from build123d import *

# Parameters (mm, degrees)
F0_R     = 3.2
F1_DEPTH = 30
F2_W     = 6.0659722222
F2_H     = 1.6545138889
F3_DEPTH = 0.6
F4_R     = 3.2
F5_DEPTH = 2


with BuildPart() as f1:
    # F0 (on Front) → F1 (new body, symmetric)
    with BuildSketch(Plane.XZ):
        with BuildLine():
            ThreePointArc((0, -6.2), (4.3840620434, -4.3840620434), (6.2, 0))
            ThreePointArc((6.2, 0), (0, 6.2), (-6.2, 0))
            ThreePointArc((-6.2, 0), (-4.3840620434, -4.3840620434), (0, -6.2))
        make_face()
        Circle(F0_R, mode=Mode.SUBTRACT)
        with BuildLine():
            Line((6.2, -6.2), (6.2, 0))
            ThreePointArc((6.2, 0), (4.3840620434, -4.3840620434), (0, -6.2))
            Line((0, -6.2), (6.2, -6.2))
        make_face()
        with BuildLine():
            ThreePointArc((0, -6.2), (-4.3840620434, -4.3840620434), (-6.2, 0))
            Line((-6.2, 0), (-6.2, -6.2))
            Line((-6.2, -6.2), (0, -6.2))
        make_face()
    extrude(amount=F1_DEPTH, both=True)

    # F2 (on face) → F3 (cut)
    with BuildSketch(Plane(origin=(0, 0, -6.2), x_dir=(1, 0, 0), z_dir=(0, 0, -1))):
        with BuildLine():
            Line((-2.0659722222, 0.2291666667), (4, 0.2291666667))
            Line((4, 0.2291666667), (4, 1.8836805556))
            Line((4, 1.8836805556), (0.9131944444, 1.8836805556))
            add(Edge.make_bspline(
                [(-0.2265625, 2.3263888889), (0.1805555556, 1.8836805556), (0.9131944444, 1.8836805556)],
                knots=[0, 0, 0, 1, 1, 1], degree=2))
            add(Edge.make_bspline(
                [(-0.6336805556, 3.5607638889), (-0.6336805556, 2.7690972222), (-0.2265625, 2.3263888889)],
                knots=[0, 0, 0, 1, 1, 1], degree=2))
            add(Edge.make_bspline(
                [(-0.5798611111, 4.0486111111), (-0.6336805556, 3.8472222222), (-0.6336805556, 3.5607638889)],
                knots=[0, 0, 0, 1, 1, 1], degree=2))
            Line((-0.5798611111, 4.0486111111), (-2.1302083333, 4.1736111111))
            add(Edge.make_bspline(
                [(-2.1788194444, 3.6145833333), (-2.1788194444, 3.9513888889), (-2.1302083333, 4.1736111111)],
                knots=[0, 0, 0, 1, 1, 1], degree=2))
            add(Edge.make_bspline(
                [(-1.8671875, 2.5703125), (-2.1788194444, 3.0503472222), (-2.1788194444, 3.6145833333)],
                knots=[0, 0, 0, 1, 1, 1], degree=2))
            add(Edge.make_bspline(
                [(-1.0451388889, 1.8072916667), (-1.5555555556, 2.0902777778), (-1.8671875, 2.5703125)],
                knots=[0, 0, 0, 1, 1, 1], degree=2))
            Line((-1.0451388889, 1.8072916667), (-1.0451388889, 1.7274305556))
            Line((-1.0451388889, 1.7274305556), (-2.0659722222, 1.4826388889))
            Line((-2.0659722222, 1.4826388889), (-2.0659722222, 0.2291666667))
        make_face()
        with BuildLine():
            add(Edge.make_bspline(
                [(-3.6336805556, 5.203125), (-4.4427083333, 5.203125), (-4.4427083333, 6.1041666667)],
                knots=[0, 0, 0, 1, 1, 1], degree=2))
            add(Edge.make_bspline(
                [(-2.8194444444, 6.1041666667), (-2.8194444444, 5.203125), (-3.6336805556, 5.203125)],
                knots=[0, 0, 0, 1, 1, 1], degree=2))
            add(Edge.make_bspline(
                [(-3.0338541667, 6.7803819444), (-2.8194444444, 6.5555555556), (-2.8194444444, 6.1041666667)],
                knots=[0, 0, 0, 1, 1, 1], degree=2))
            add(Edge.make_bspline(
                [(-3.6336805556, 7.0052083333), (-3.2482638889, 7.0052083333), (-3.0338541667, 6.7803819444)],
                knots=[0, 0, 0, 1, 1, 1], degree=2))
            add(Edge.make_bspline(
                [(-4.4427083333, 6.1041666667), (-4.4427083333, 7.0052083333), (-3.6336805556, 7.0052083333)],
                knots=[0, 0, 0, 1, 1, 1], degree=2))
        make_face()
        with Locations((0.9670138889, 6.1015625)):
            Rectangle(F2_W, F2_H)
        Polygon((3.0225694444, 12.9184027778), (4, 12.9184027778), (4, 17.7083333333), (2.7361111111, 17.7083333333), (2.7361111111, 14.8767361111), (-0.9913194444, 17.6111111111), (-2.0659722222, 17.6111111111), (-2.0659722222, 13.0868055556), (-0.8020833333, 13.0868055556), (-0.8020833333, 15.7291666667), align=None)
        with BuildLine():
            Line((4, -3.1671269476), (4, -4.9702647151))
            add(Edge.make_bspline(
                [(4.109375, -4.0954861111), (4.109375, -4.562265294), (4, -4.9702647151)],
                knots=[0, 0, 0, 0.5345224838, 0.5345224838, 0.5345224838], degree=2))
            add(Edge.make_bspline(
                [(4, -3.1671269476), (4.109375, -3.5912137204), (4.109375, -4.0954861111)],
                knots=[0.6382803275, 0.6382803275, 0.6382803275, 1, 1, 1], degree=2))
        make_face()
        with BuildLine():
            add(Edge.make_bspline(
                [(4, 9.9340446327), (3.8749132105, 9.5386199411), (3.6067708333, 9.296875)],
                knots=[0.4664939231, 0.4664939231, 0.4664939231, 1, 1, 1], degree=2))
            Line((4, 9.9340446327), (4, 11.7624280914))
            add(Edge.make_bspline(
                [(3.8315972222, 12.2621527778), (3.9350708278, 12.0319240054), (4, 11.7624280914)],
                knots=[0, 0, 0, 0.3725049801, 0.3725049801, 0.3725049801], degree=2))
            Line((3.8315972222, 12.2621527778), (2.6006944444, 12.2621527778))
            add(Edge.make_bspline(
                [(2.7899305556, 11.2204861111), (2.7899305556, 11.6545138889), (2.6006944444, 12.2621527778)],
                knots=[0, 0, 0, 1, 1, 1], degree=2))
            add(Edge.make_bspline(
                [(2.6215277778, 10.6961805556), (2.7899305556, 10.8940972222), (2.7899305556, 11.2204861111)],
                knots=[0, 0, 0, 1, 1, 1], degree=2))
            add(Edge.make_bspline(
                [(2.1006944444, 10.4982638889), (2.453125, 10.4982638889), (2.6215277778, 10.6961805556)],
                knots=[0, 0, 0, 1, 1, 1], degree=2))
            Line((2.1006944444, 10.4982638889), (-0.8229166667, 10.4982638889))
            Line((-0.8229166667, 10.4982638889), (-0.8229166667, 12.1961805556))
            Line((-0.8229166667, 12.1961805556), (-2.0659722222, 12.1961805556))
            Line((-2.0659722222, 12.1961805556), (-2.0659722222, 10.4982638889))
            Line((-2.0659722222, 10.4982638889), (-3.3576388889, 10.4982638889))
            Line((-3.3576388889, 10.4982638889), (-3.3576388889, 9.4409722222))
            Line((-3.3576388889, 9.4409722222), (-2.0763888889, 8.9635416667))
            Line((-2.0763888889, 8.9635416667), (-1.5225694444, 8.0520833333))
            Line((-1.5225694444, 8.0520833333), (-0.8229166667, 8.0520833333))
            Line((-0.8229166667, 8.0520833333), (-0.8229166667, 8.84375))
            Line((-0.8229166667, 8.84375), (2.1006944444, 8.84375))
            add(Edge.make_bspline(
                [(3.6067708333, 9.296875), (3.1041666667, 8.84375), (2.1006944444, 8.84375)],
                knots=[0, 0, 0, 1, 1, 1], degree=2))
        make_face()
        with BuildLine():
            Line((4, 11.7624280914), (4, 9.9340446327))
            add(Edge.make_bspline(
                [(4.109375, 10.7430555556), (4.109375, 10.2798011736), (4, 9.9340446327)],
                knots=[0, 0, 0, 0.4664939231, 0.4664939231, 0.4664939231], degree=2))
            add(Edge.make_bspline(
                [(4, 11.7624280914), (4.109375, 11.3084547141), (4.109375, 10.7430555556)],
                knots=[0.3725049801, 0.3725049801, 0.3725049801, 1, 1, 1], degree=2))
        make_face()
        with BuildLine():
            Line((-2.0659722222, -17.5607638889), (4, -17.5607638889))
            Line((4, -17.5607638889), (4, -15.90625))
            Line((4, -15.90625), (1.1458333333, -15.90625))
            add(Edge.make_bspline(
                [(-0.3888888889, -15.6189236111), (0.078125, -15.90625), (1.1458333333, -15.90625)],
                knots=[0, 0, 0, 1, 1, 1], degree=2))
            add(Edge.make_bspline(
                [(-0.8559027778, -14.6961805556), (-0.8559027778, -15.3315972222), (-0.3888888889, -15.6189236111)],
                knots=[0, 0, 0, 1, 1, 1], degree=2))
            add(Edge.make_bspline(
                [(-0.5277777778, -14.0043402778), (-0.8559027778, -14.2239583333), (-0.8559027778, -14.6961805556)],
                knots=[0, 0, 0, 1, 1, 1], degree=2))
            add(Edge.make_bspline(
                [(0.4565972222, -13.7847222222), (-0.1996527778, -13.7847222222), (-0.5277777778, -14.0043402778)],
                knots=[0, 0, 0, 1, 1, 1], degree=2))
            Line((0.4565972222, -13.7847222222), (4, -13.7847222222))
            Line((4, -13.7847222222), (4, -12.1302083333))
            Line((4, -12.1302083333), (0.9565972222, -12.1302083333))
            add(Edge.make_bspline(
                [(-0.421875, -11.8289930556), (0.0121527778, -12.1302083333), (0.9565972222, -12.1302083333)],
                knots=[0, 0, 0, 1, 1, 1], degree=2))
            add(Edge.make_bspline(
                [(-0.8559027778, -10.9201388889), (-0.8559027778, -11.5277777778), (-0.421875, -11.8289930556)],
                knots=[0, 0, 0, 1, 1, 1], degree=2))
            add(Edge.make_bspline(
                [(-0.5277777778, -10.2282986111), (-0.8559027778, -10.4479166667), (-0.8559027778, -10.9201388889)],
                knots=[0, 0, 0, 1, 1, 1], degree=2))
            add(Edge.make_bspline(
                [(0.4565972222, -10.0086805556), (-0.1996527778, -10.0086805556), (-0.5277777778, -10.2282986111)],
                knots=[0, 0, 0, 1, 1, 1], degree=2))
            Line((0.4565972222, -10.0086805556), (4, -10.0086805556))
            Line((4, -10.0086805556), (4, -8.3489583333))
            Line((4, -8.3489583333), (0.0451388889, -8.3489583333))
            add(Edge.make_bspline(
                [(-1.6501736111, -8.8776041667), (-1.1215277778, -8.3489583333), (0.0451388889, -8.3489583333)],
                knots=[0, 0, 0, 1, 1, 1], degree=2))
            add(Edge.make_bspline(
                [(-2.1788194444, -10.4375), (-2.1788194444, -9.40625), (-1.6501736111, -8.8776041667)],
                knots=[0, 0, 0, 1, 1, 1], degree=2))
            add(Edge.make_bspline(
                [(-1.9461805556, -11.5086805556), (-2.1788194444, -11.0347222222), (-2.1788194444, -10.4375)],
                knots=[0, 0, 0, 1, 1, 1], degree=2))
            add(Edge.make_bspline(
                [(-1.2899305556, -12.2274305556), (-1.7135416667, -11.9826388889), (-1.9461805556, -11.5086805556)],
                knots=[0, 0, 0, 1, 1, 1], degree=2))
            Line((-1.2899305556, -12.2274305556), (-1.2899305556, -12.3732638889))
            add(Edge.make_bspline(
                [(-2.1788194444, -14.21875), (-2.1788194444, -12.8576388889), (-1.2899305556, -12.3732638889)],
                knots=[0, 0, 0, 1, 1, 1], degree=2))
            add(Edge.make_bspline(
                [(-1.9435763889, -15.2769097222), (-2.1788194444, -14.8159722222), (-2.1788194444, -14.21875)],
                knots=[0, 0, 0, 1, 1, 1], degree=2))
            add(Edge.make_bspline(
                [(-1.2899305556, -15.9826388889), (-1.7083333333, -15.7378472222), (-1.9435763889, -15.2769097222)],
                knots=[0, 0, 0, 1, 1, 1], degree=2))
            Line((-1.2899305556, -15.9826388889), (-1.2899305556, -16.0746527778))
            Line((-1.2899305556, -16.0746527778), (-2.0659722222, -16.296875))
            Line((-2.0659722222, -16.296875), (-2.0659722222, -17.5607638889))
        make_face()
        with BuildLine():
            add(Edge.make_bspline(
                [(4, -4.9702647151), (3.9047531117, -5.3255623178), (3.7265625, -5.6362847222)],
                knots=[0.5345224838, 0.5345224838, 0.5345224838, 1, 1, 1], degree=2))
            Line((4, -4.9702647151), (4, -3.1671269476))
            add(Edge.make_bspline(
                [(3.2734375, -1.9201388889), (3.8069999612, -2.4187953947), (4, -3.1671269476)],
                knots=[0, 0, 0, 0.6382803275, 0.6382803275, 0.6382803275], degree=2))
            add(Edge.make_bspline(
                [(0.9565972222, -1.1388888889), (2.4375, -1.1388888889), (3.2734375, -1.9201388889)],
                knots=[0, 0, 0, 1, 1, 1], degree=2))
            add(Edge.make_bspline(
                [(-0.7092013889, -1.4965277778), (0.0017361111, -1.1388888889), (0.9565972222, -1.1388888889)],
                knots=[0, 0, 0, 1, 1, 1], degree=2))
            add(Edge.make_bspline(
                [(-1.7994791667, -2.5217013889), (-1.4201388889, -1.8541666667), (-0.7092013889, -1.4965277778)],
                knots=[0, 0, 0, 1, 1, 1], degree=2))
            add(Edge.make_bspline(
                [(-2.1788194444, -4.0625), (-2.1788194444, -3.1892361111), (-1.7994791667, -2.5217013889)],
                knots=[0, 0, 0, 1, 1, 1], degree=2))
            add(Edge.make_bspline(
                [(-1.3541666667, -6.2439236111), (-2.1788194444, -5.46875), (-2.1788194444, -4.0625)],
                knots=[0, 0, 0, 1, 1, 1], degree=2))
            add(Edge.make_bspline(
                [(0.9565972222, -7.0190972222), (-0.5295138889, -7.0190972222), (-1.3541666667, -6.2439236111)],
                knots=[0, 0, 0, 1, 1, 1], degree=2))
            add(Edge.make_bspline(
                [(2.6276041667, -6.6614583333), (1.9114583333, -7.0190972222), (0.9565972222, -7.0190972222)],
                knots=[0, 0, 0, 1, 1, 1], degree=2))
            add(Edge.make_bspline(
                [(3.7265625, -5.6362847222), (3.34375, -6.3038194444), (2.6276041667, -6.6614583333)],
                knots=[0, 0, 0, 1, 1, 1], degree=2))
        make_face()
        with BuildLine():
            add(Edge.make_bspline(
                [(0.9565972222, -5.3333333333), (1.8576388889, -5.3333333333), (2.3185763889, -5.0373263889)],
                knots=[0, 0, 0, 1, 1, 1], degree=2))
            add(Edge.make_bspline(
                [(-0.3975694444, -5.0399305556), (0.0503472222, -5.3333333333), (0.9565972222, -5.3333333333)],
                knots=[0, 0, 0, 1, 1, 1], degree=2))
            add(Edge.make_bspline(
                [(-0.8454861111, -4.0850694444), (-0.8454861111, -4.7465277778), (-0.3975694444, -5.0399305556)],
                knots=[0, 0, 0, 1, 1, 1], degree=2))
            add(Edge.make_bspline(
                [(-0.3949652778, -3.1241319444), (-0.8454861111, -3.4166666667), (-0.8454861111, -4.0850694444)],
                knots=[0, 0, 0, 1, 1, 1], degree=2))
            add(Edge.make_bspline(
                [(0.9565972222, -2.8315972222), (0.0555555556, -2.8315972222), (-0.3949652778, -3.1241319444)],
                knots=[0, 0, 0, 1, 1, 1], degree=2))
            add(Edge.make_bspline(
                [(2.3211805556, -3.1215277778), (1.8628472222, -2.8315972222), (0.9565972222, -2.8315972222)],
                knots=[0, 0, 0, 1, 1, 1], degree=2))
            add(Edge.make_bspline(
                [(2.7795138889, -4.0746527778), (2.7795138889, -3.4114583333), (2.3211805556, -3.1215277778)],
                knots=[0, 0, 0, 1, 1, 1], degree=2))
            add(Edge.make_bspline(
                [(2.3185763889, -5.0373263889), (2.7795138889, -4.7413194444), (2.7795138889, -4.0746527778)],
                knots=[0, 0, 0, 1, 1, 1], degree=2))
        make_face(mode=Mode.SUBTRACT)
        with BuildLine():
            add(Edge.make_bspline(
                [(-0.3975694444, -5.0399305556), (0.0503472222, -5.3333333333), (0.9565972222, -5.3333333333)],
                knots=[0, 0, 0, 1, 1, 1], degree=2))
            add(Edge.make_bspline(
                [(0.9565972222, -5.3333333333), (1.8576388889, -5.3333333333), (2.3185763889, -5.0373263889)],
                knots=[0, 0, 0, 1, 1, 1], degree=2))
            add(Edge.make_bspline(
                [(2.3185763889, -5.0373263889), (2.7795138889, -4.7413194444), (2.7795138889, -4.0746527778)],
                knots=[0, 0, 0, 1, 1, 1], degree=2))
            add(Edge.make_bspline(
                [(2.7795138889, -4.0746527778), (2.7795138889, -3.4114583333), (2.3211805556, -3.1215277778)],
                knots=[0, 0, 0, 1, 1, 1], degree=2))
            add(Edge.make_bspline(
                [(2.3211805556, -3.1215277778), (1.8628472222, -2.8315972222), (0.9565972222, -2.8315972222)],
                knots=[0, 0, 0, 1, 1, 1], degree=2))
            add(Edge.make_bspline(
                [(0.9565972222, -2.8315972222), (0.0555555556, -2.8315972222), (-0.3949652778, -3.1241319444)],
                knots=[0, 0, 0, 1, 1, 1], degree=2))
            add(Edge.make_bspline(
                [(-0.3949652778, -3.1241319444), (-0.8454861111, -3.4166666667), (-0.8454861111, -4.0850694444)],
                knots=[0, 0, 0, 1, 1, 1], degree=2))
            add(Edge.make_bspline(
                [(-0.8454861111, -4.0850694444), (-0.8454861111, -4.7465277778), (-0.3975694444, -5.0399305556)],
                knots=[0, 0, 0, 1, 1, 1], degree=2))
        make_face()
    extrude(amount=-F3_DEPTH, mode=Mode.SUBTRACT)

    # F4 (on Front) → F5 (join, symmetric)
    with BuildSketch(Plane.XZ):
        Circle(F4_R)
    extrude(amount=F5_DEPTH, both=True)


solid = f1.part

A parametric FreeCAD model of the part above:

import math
import FreeCAD as App
import Part
import Sketcher
from FreeCAD import Vector
Q = App.Units.Quantity

doc = App.newDocument("Part")
body = doc.addObject("PartDesign::Body", "Body")

sketch1 = doc.addObject("Sketcher::SketchObject", "Sketch")
body.addObject(sketch1)
sketch1.AttachmentSupport = (doc.XZ_Plane, [""])
sketch1.MapMode = "FlatFace"
sketch1.addGeometry(Part.LineSegment(Vector(6.2, -6.2, 0), Vector(6.2, 0, 0)), False)
sketch1.addGeometry(Part.ArcOfCircle(Part.Circle(Vector(0, 0, 0), Vector(0, 0, 1), 6.2), math.radians(0), math.radians(180)), False)
sketch1.addGeometry(Part.LineSegment(Vector(-6.2, 0, 0), Vector(-6.2, -6.2, 0)), False)
sketch1.addGeometry(Part.LineSegment(Vector(-6.2, -6.2, 0), Vector(6.2, -6.2, 0)), False)
sketch1.addGeometry(Part.Circle(Vector(0, 0, 0), Vector(0, 0, 1), 3.2), False)
sketch1.addConstraint(Sketcher.Constraint("Tangent", 0, 2, 1, 1))
sketch1.addConstraint(Sketcher.Constraint("Tangent", 1, 2, 2, 1))
sketch1.addConstraint(Sketcher.Constraint("Coincident", 2, 2, 3, 1))
sketch1.addConstraint(Sketcher.Constraint("Coincident", 3, 2, 0, 1))
sketch1.addConstraint(Sketcher.Constraint("Vertical", 0))
sketch1.addConstraint(Sketcher.Constraint("Vertical", 2))
sketch1.addConstraint(Sketcher.Constraint("Horizontal", 3))
sketch1.addConstraint(Sketcher.Constraint("Coincident", 1, 3, -1, 1))
sketch1.addConstraint(Sketcher.Constraint("Coincident", 4, 3, -1, 1))
sketch1.addConstraint(Sketcher.Constraint("Diameter", 4, Q("6.4 mm")))
sketch1.addConstraint(Sketcher.Constraint("Radius", 1, Q("6.2 mm")))
sketch1.addConstraint(Sketcher.Constraint("DistanceY", 0, 1, 0, 2, Q("6.2 mm")))
pad1 = doc.addObject("PartDesign::Pad", "Pad")
body.addObject(pad1)
pad1.Profile = sketch1
pad1.Length = 60
pad1.Midplane = True

sketch2 = doc.addObject("Sketcher::SketchObject", "Sketch001")
body.addObject(sketch2)
sketch2.AttachmentSupport = (doc.XY_Plane, [""])
sketch2.MapMode = "FlatFace"
sketch2.AttachmentOffset = App.Placement(Vector(0, 0, -6.2), App.Rotation())
sketch2.addGeometry(Part.LineSegment(Vector(-2.065972, -0.229167, 0), Vector(4, -0.229167, 0)), False)
sketch2.addGeometry(Part.LineSegment(Vector(4, -0.229167, 0), Vector(4, -1.883681, 0)), False)
sketch2.addGeometry(Part.LineSegment(Vector(4, -1.883681, 0), Vector(0.913194, -1.883681, 0)), False)
sketch2.addGeometry(Part.BSplineCurve([Vector(-0.579861, -4.048611, 0), Vector(-0.633681, -3.847222, 0), Vector(-0.633681, -2.769097, 0), Vector(0.180556, -1.883681, 0), Vector(0.913194, -1.883681, 0)], [3, 1, 1, 3], [0, 1, 3.763636364, 6.527272728], False, 2, [1, 1, 1, 1, 1], False), False)
sketch2.addGeometry(Part.LineSegment(Vector(-0.579861, -4.048611, 0), Vector(-2.130208, -4.173611, 0)), False)
sketch2.addGeometry(Part.BSplineCurve([Vector(-1.045139, -1.807292, 0), Vector(-1.555556, -2.090278, 0), Vector(-2.178819, -3.050347, 0), Vector(-2.178819, -3.951389, 0), Vector(-2.130208, -4.173611, 0)], [3, 1, 1, 3], [0, 1, 2, 2.596923077], False, 2, [1, 1, 1, 1, 1], False), False)
sketch2.addGeometry(Part.LineSegment(Vector(-1.045139, -1.807292, 0), Vector(-1.045139, -1.727431, 0)), False)
sketch2.addGeometry(Part.LineSegment(Vector(-1.045139, -1.727431, 0), Vector(-2.065972, -1.482639, 0)), False)
sketch2.addGeometry(Part.LineSegment(Vector(-2.065972, -1.482639, 0), Vector(-2.065972, -0.229167, 0)), False)
sketch2.addGeometry(Part.BSplineCurve([Vector(-3.033854, -6.780382, 0), Vector(-2.819444, -6.555556, 0), Vector(-2.819444, -5.203125, 0), Vector(-4.442708, -5.203125, 0), Vector(-4.442708, -7.005208, 0), Vector(-3.248264, -7.005208, 0), Vector(-3.033854, -6.780382, 0)], [3, 1, 1, 1, 1, 3], [0, 1, 2.996153846, 4.979539117, 6.962924388, 7.907798916], False, 2, [1, 1, 1, 1, 1, 1, 1], False), False)
sketch2.addGeometry(Part.LineSegment(Vector(-2.065972, -6.928819, 0), Vector(-2.065972, -5.274306, 0)), False)
sketch2.addGeometry(Part.LineSegment(Vector(-2.065972, -5.274306, 0), Vector(4, -5.274306, 0)), False)
sketch2.addGeometry(Part.LineSegment(Vector(4, -5.274306, 0), Vector(4, -6.928819, 0)), False)
sketch2.addGeometry(Part.LineSegment(Vector(4, -6.928819, 0), Vector(-2.065972, -6.928819, 0)), False)
sketch2.addGeometry(Part.LineSegment(Vector(3.022569, -12.918403, 0), Vector(4, -12.918403, 0)), False)
sketch2.addGeometry(Part.LineSegment(Vector(4, -12.918403, 0), Vector(4, -17.708333, 0)), False)
sketch2.addGeometry(Part.LineSegment(Vector(4, -17.708333, 0), Vector(2.736111, -17.708333, 0)), False)
sketch2.addGeometry(Part.LineSegment(Vector(2.736111, -17.708333, 0), Vector(2.736111, -14.876736, 0)), False)
sketch2.addGeometry(Part.LineSegment(Vector(2.736111, -14.876736, 0), Vector(-0.991319, -17.611111, 0)), False)
sketch2.addGeometry(Part.LineSegment(Vector(-0.991319, -17.611111, 0), Vector(-2.065972, -17.611111, 0)), False)
sketch2.addGeometry(Part.LineSegment(Vector(-2.065972, -17.611111, 0), Vector(-2.065972, -13.086806, 0)), False)
sketch2.addGeometry(Part.LineSegment(Vector(-2.065972, -13.086806, 0), Vector(-0.802083, -13.086806, 0)), False)
sketch2.addGeometry(Part.LineSegment(Vector(-0.802083, -13.086806, 0), Vector(-0.802083, -15.729167, 0)), False)
sketch2.addGeometry(Part.LineSegment(Vector(-0.802083, -15.729167, 0), Vector(3.022569, -12.918403, 0)), False)
sketch2.addGeometry(Part.BSplineCurve([Vector(4, 3.167127, 0), Vector(4.109375, 3.591214, 0), Vector(4.109375, 4.562265, 0), Vector(4, 4.970265, 0)], [3, 1, 3], [0.638280327, 1, 1.334825416], False, 2, [1, 1, 1, 1], False), False)
sketch2.addGeometry(Part.BSplineCurve([Vector(3.273438, 1.920139, 0), Vector(3.807, 2.418795, 0), Vector(4, 3.167127, 0)], [3, 3], [0, 0.638280327], False, 2, [1, 1, 1], False), False)
sketch2.addGeometry(Part.BSplineCurve([Vector(-1.799479, 2.521701, 0), Vector(-1.420139, 1.854167, 0), Vector(0.001736, 1.138889, 0), Vector(2.4375, 1.138889, 0), Vector(3.273438, 1.920139, 0)], [3, 1, 1, 3], [0, 1, 2, 3.550909091], False, 2, [1, 1, 1, 1, 1], False), False)
sketch2.addGeometry(Part.BSplineCurve([Vector(-1.354167, 6.243924, 0), Vector(-2.178819, 5.46875, 0), Vector(-2.178819, 3.189236, 0), Vector(-1.799479, 2.521701, 0)], [3, 1, 3], [0, 1, 1.620987654], False, 2, [1, 1, 1, 1], False), False)
sketch2.addGeometry(Part.BSplineCurve([Vector(2.627604, 6.661458, 0), Vector(1.911458, 7.019097, 0), Vector(-0.529514, 7.019097, 0), Vector(-1.354167, 6.243924, 0)], [3, 1, 3], [0, 1, 2.556363636], False, 2, [1, 1, 1, 1], False), False)
sketch2.addGeometry(Part.BSplineCurve([Vector(3.726562, 5.636285, 0), Vector(3.34375, 6.303819, 0), Vector(2.627604, 6.661458, 0)], [3, 3], [0, 1], False, 2, [1, 1, 1], False), False)
sketch2.addGeometry(Part.BSplineCurve([Vector(4, 4.970265, 0), Vector(3.904753, 5.325562, 0), Vector(3.726562, 5.636285, 0)], [3, 3], [0.534522484, 1], False, 2, [1, 1, 1], False), False)
sketch2.addGeometry(Part.BSplineCurve([Vector(4, -9.934045, 0), Vector(3.874913, -9.53862, 0), Vector(3.606771, -9.296875, 0)], [3, 3], [0.466493923, 1], False, 2, [1, 1, 1], False), False)
sketch2.addGeometry(Part.BSplineCurve([Vector(4, -11.762428, 0), Vector(4.109375, -11.308455, 0), Vector(4.109375, -10.279801, 0), Vector(4, -9.934045, 0)], [3, 1, 3], [0.37250498, 1, 1.514132031], False, 2, [1, 1, 1, 1], False), False)
sketch2.addGeometry(Part.BSplineCurve([Vector(3.831597, -12.262153, 0), Vector(3.935071, -12.031924, 0), Vector(4, -11.762428, 0)], [3, 3], [0, 0.37250498], False, 2, [1, 1, 1], False), False)
sketch2.addGeometry(Part.LineSegment(Vector(3.831597, -12.262153, 0), Vector(2.600694, -12.262153, 0)), False)
sketch2.addGeometry(Part.BSplineCurve([Vector(2.621528, -10.696181, 0), Vector(2.789931, -10.894097, 0), Vector(2.789931, -11.654514, 0), Vector(2.600694, -12.262153, 0)], [3, 1, 3], [0, 1, 2.329787234], False, 2, [1, 1, 1, 1], False), False)
sketch2.addGeometry(Part.BSplineCurve([Vector(2.100694, -10.498264, 0), Vector(2.453125, -10.498264, 0), Vector(2.621528, -10.696181, 0)], [3, 3], [0, 1], False, 2, [1, 1, 1], False), False)
sketch2.addGeometry(Part.LineSegment(Vector(2.100694, -10.498264, 0), Vector(-0.822917, -10.498264, 0)), False)
sketch2.addGeometry(Part.LineSegment(Vector(-0.822917, -10.498264, 0), Vector(-0.822917, -12.196181, 0)), False)
sketch2.addGeometry(Part.LineSegment(Vector(-0.822917, -12.196181, 0), Vector(-2.065972, -12.196181, 0)), False)
sketch2.addGeometry(Part.LineSegment(Vector(-2.065972, -12.196181, 0), Vector(-2.065972, -10.498264, 0)), False)
sketch2.addGeometry(Part.LineSegment(Vector(-2.065972, -10.498264, 0), Vector(-3.357639, -10.498264, 0)), False)
sketch2.addGeometry(Part.LineSegment(Vector(-3.357639, -10.498264, 0), Vector(-3.357639, -9.440972, 0)), False)
sketch2.addGeometry(Part.LineSegment(Vector(-3.357639, -9.440972, 0), Vector(-2.076389, -8.963542, 0)), False)
sketch2.addGeometry(Part.LineSegment(Vector(-2.076389, -8.963542, 0), Vector(-1.522569, -8.052083, 0)), False)
sketch2.addGeometry(Part.LineSegment(Vector(-1.522569, -8.052083, 0), Vector(-0.822917, -8.052083, 0)), False)
sketch2.addGeometry(Part.LineSegment(Vector(-0.822917, -8.052083, 0), Vector(-0.822917, -8.84375, 0)), False)
sketch2.addGeometry(Part.LineSegment(Vector(-0.822917, -8.84375, 0), Vector(2.100694, -8.84375, 0)), False)
sketch2.addGeometry(Part.BSplineCurve([Vector(3.606771, -9.296875, 0), Vector(3.104167, -8.84375, 0), Vector(2.100694, -8.84375, 0)], [3, 3], [0, 1], False, 2, [1, 1, 1], False), False)
sketch2.addGeometry(Part.LineSegment(Vector(-2.065972, 17.560764, 0), Vector(4, 17.560764, 0)), False)
sketch2.addGeometry(Part.LineSegment(Vector(4, 17.560764, 0), Vector(4, 15.90625, 0)), False)
sketch2.addGeometry(Part.LineSegment(Vector(4, 15.90625, 0), Vector(1.145833, 15.90625, 0)), False)
sketch2.addGeometry(Part.BSplineCurve([Vector(-0.527778, 14.00434, 0), Vector(-0.855903, 14.223958, 0), Vector(-0.855903, 15.331597, 0), Vector(0.078125, 15.90625, 0), Vector(1.145833, 15.90625, 0)], [3, 1, 1, 3], [0, 1, 2.345588235, 3.69117647], False, 2, [1, 1, 1, 1, 1], False), False)
sketch2.addGeometry(Part.BSplineCurve([Vector(0.456597, 13.784722, 0), Vector(-0.199653, 13.784722, 0), Vector(-0.527778, 14.00434, 0)], [3, 3], [0, 1], False, 2, [1, 1, 1], False), False)
sketch2.addGeometry(Part.LineSegment(Vector(0.456597, 13.784722, 0), Vector(4, 13.784722, 0)), False)
sketch2.addGeometry(Part.LineSegment(Vector(4, 13.784722, 0), Vector(4, 12.130208, 0)), False)
sketch2.addGeometry(Part.LineSegment(Vector(4, 12.130208, 0), Vector(0.956597, 12.130208, 0)), False)
sketch2.addGeometry(Part.BSplineCurve([Vector(-0.421875, 11.828993, 0), Vector(0.012153, 12.130208, 0), Vector(0.956597, 12.130208, 0)], [3, 3], [0, 1], False, 2, [1, 1, 1], False), False)
sketch2.addGeometry(Part.BSplineCurve([Vector(-0.527778, 10.228299, 0), Vector(-0.855903, 10.447917, 0), Vector(-0.855903, 11.527778, 0), Vector(-0.421875, 11.828993, 0)], [3, 1, 3], [0, 1, 2.286764706], False, 2, [1, 1, 1, 1], False), False)
sketch2.addGeometry(Part.BSplineCurve([Vector(0.456597, 10.008681, 0), Vector(-0.199653, 10.008681, 0), Vector(-0.527778, 10.228299, 0)], [3, 3], [0, 1], False, 2, [1, 1, 1], False), False)
sketch2.addGeometry(Part.LineSegment(Vector(0.456597, 10.008681, 0), Vector(4, 10.008681, 0)), False)
sketch2.addGeometry(Part.LineSegment(Vector(4, 10.008681, 0), Vector(4, 8.348958, 0)), False)
sketch2.addGeometry(Part.LineSegment(Vector(4, 8.348958, 0), Vector(0.045139, 8.348958, 0)), False)
sketch2.addGeometry(Part.BSplineCurve([Vector(-1.650174, 8.877604, 0), Vector(-1.121528, 8.348958, 0), Vector(0.045139, 8.348958, 0)], [3, 3], [0, 1], False, 2, [1, 1, 1], False), False)
sketch2.addGeometry(Part.BSplineCurve([Vector(-1.946181, 11.508681, 0), Vector(-2.178819, 11.034722, 0), Vector(-2.178819, 9.40625, 0), Vector(-1.650174, 8.877604, 0)], [3, 1, 3], [0, 1, 2.726744186], False, 2, [1, 1, 1, 1], False), False)
sketch2.addGeometry(Part.BSplineCurve([Vector(-1.289931, 12.227431, 0), Vector(-1.713542, 11.982639, 0), Vector(-1.946181, 11.508681, 0)], [3, 3], [0, 1], False, 2, [1, 1, 1], False), False)
sketch2.addGeometry(Part.LineSegment(Vector(-1.289931, 12.227431, 0), Vector(-1.289931, 12.373264, 0)), False)
sketch2.addGeometry(Part.BSplineCurve([Vector(-1.943576, 15.27691, 0), Vector(-2.178819, 14.815972, 0), Vector(-2.178819, 12.857639, 0), Vector(-1.289931, 12.373264, 0)], [3, 1, 3], [0, 1, 3.279069768], False, 2, [1, 1, 1, 1], False), False)
sketch2.addGeometry(Part.BSplineCurve([Vector(-1.289931, 15.982639, 0), Vector(-1.708333, 15.737847, 0), Vector(-1.943576, 15.27691, 0)], [3, 3], [0, 1], False, 2, [1, 1, 1], False), False)
sketch2.addGeometry(Part.LineSegment(Vector(-1.289931, 15.982639, 0), Vector(-1.289931, 16.074653, 0)), False)
sketch2.addGeometry(Part.LineSegment(Vector(-1.289931, 16.074653, 0), Vector(-2.065972, 16.296875, 0)), False)
sketch2.addGeometry(Part.LineSegment(Vector(-2.065972, 16.296875, 0), Vector(-2.065972, 17.560764, 0)), False)
sketch2.addConstraint(Sketcher.Constraint("Block", 3))
sketch2.addConstraint(Sketcher.Constraint("Block", 5))
sketch2.addConstraint(Sketcher.Constraint("Block", 9))
sketch2.addConstraint(Sketcher.Constraint("Block", 24))
sketch2.addConstraint(Sketcher.Constraint("Block", 25))
sketch2.addConstraint(Sketcher.Constraint("Block", 26))
sketch2.addConstraint(Sketcher.Constraint("Block", 27))
sketch2.addConstraint(Sketcher.Constraint("Block", 28))
sketch2.addConstraint(Sketcher.Constraint("Block", 29))
sketch2.addConstraint(Sketcher.Constraint("Block", 30))
sketch2.addConstraint(Sketcher.Constraint("Block", 31))
sketch2.addConstraint(Sketcher.Constraint("Block", 32))
sketch2.addConstraint(Sketcher.Constraint("Block", 33))
sketch2.addConstraint(Sketcher.Constraint("Block", 35))
sketch2.addConstraint(Sketcher.Constraint("Block", 36))
sketch2.addConstraint(Sketcher.Constraint("Block", 48))
sketch2.addConstraint(Sketcher.Constraint("Block", 52))
sketch2.addConstraint(Sketcher.Constraint("Block", 53))
sketch2.addConstraint(Sketcher.Constraint("Block", 57))
sketch2.addConstraint(Sketcher.Constraint("Block", 58))
sketch2.addConstraint(Sketcher.Constraint("Block", 59))
sketch2.addConstraint(Sketcher.Constraint("Block", 63))
sketch2.addConstraint(Sketcher.Constraint("Block", 64))
sketch2.addConstraint(Sketcher.Constraint("Block", 65))
sketch2.addConstraint(Sketcher.Constraint("Block", 67))
sketch2.addConstraint(Sketcher.Constraint("Block", 68))
sketch2.addConstraint(Sketcher.Constraint("Coincident", 0, 2, 1, 1))
sketch2.addConstraint(Sketcher.Constraint("Coincident", 1, 2, 2, 1))
sketch2.addConstraint(Sketcher.Constraint("Coincident", 2, 2, 3, 2))
sketch2.addConstraint(Sketcher.Constraint("Coincident", 3, 1, 4, 1))
sketch2.addConstraint(Sketcher.Constraint("Coincident", 4, 2, 5, 2))
sketch2.addConstraint(Sketcher.Constraint("Coincident", 5, 1, 6, 1))
sketch2.addConstraint(Sketcher.Constraint("Coincident", 6, 2, 7, 1))
sketch2.addConstraint(Sketcher.Constraint("Coincident", 7, 2, 8, 1))
sketch2.addConstraint(Sketcher.Constraint("Coincident", 8, 2, 0, 1))
sketch2.addConstraint(Sketcher.Constraint("Coincident", 10, 2, 11, 1))
sketch2.addConstraint(Sketcher.Constraint("Coincident", 11, 2, 12, 1))
sketch2.addConstraint(Sketcher.Constraint("Coincident", 12, 2, 13, 1))
sketch2.addConstraint(Sketcher.Constraint("Coincident", 13, 2, 10, 1))
sketch2.addConstraint(Sketcher.Constraint("Coincident", 14, 2, 15, 1))
sketch2.addConstraint(Sketcher.Constraint("Coincident", 15, 2, 16, 1))
sketch2.addConstraint(Sketcher.Constraint("Coincident", 16, 2, 17, 1))
sketch2.addConstraint(Sketcher.Constraint("Coincident", 17, 2, 18, 1))
sketch2.addConstraint(Sketcher.Constraint("Coincident", 18, 2, 19, 1))
sketch2.addConstraint(Sketcher.Constraint("Coincident", 19, 2, 20, 1))
sketch2.addConstraint(Sketcher.Constraint("Coincident", 20, 2, 21, 1))
sketch2.addConstraint(Sketcher.Constraint("Coincident", 21, 2, 22, 1))
sketch2.addConstraint(Sketcher.Constraint("Coincident", 22, 2, 23, 1))
sketch2.addConstraint(Sketcher.Constraint("Coincident", 23, 2, 14, 1))
sketch2.addConstraint(Sketcher.Constraint("Coincident", 33, 1, 34, 1))
sketch2.addConstraint(Sketcher.Constraint("Coincident", 34, 2, 35, 2))
sketch2.addConstraint(Sketcher.Constraint("Coincident", 36, 1, 37, 1))
sketch2.addConstraint(Sketcher.Constraint("Coincident", 37, 2, 38, 1))
sketch2.addConstraint(Sketcher.Constraint("Coincident", 38, 2, 39, 1))
sketch2.addConstraint(Sketcher.Constraint("Coincident", 39, 2, 40, 1))
sketch2.addConstraint(Sketcher.Constraint("Coincident", 40, 2, 41, 1))
sketch2.addConstraint(Sketcher.Constraint("Coincident", 41, 2, 42, 1))
sketch2.addConstraint(Sketcher.Constraint("Coincident", 42, 2, 43, 1))
sketch2.addConstraint(Sketcher.Constraint("Coincident", 43, 2, 44, 1))
sketch2.addConstraint(Sketcher.Constraint("Coincident", 44, 2, 45, 1))
sketch2.addConstraint(Sketcher.Constraint("Coincident", 45, 2, 46, 1))
sketch2.addConstraint(Sketcher.Constraint("Coincident", 46, 2, 47, 1))
sketch2.addConstraint(Sketcher.Constraint("Coincident", 47, 2, 48, 2))
sketch2.addConstraint(Sketcher.Constraint("Coincident", 49, 2, 50, 1))
sketch2.addConstraint(Sketcher.Constraint("Coincident", 50, 2, 51, 1))
sketch2.addConstraint(Sketcher.Constraint("Coincident", 51, 2, 52, 2))
sketch2.addConstraint(Sketcher.Constraint("Coincident", 53, 1, 54, 1))
sketch2.addConstraint(Sketcher.Constraint("Coincident", 54, 2, 55, 1))
sketch2.addConstraint(Sketcher.Constraint("Coincident", 55, 2, 56, 1))
sketch2.addConstraint(Sketcher.Constraint("Coincident", 56, 2, 57, 2))
sketch2.addConstraint(Sketcher.Constraint("Coincident", 59, 1, 60, 1))
sketch2.addConstraint(Sketcher.Constraint("Coincident", 60, 2, 61, 1))
sketch2.addConstraint(Sketcher.Constraint("Coincident", 61, 2, 62, 1))
sketch2.addConstraint(Sketcher.Constraint("Coincident", 62, 2, 63, 2))
sketch2.addConstraint(Sketcher.Constraint("Coincident", 65, 1, 66, 1))
sketch2.addConstraint(Sketcher.Constraint("Coincident", 66, 2, 67, 2))
sketch2.addConstraint(Sketcher.Constraint("Coincident", 68, 1, 69, 1))
sketch2.addConstraint(Sketcher.Constraint("Coincident", 69, 2, 70, 1))
sketch2.addConstraint(Sketcher.Constraint("Coincident", 70, 2, 71, 1))
sketch2.addConstraint(Sketcher.Constraint("Coincident", 71, 2, 49, 1))
sketch2.addConstraint(Sketcher.Constraint("Horizontal", 0))
sketch2.addConstraint(Sketcher.Constraint("Vertical", 1))
sketch2.addConstraint(Sketcher.Constraint("Horizontal", 2))
sketch2.addConstraint(Sketcher.Constraint("Vertical", 6))
sketch2.addConstraint(Sketcher.Constraint("Vertical", 8))
sketch2.addConstraint(Sketcher.Constraint("Vertical", 10))
sketch2.addConstraint(Sketcher.Constraint("Horizontal", 11))
sketch2.addConstraint(Sketcher.Constraint("Vertical", 12))
sketch2.addConstraint(Sketcher.Constraint("Horizontal", 13))
sketch2.addConstraint(Sketcher.Constraint("Horizontal", 14))
sketch2.addConstraint(Sketcher.Constraint("Vertical", 15))
sketch2.addConstraint(Sketcher.Constraint("Horizontal", 16))
sketch2.addConstraint(Sketcher.Constraint("Vertical", 17))
sketch2.addConstraint(Sketcher.Constraint("Horizontal", 19))
sketch2.addConstraint(Sketcher.Constraint("Vertical", 20))
sketch2.addConstraint(Sketcher.Constraint("Horizontal", 21))
sketch2.addConstraint(Sketcher.Constraint("Vertical", 22))
sketch2.addConstraint(Sketcher.Constraint("Horizontal", 37))
sketch2.addConstraint(Sketcher.Constraint("Vertical", 38))
sketch2.addConstraint(Sketcher.Constraint("Horizontal", 39))
sketch2.addConstraint(Sketcher.Constraint("Vertical", 40))
sketch2.addConstraint(Sketcher.Constraint("Horizontal", 41))
sketch2.addConstraint(Sketcher.Constraint("Vertical", 42))
sketch2.addConstraint(Sketcher.Constraint("Horizontal", 45))
sketch2.addConstraint(Sketcher.Constraint("Vertical", 46))
sketch2.addConstraint(Sketcher.Constraint("Horizontal", 47))
sketch2.addConstraint(Sketcher.Constraint("Horizontal", 49))
sketch2.addConstraint(Sketcher.Constraint("Vertical", 50))
sketch2.addConstraint(Sketcher.Constraint("Horizontal", 51))
sketch2.addConstraint(Sketcher.Constraint("Horizontal", 54))
sketch2.addConstraint(Sketcher.Constraint("Vertical", 55))
sketch2.addConstraint(Sketcher.Constraint("Horizontal", 56))
sketch2.addConstraint(Sketcher.Constraint("Horizontal", 60))
sketch2.addConstraint(Sketcher.Constraint("Vertical", 61))
sketch2.addConstraint(Sketcher.Constraint("Horizontal", 62))
sketch2.addConstraint(Sketcher.Constraint("Vertical", 69))
sketch2.addConstraint(Sketcher.Constraint("Vertical", 71))
sketch2.addConstraint(Sketcher.Constraint("DistanceX", -1, 1, 0, 2, Q("4 mm")))
sketch2.addConstraint(Sketcher.Constraint("DistanceX", -1, 1, 11, 2, Q("4 mm")))
sketch2.addConstraint(Sketcher.Constraint("DistanceX", -1, 1, 14, 2, Q("4 mm")))
sketch2.addConstraint(Sketcher.Constraint("DistanceX", -1, 1, 49, 2, Q("4 mm")))
sketch2.addConstraint(Sketcher.Constraint("DistanceX", -1, 1, 54, 2, Q("4 mm")))
sketch2.addConstraint(Sketcher.Constraint("DistanceX", -1, 1, 60, 2, Q("4 mm")))
sketch2.addConstraint(Sketcher.Constraint("DistanceX", 14, 1, 14, 2, Q("0.977431 mm")))
sketch2.addConstraint(Sketcher.Constraint("DistanceX", 16, 2, 16, 1, Q("1.263889 mm")))
sketch2.addConstraint(Sketcher.Constraint("DistanceX", 21, 1, 21, 2, Q("1.263889 mm")))
sketch2.addConstraint(Sketcher.Constraint("DistanceX", 37, 2, 37, 1, Q("2.923611 mm")))
sketch2.addConstraint(Sketcher.Constraint("DistanceX", 47, 1, 47, 2, Q("2.923611 mm")))
sketch2.addConstraint(Sketcher.Constraint("DistanceY", 6, 1, 6, 2, Q("0.079861 mm")))
sketch2.addConstraint(Sketcher.Constraint("DistanceY", 15, 2, 15, 1, Q("4.789931 mm")))
sketch2.addConstraint(Sketcher.Constraint("DistanceY", 22, 2, 22, 1, Q("2.642361 mm")))
sketch2.addConstraint(Sketcher.Constraint("DistanceY", 42, 1, 42, 2, Q("1.057292 mm")))
sketch2.addConstraint(Sketcher.Constraint("DistanceY", 71, 1, 71, 2, Q("1.263889 mm")))
sketch2.addConstraint(Sketcher.Constraint("DistanceY", 66, 2, 71, 2, Q("5.1875 mm")))
sketch2.addConstraint(Sketcher.Constraint("Distance", 18, Q("4.622829 mm")))
sketch2.addConstraint(Sketcher.Constraint("Distance", 43, Q("1.367312 mm")))
sketch2.addConstraint(Sketcher.Constraint("Distance", 70, Q("0.807232 mm")))
sketch2.addConstraint(Sketcher.Constraint("DistanceX", 0, 1, 0, 2, Q("6.065972 mm")))
sketch2.addConstraint(Sketcher.Constraint("DistanceX", 11, 1, 11, 2, Q("6.065972 mm")))
sketch2.addConstraint(Sketcher.Constraint("DistanceX", 19, 2, 19, 1, Q("1.074653 mm")))
sketch2.addConstraint(Sketcher.Constraint("DistanceX", 39, 2, 39, 1, Q("1.243056 mm")))
sketch2.addConstraint(Sketcher.Constraint("DistanceX", 41, 2, 41, 1, Q("1.291667 mm")))
sketch2.addConstraint(Sketcher.Constraint("DistanceX", 45, 1, 45, 2, Q("0.699653 mm")))
sketch2.addConstraint(Sketcher.Constraint("DistanceX", 49, 1, 49, 2, Q("6.065972 mm")))
sketch2.addConstraint(Sketcher.Constraint("DistanceY", 1, 2, 1, 1, Q("1.654514 mm")))
sketch2.addConstraint(Sketcher.Constraint("DistanceY", 8, 1, 8, 2, Q("1.253472 mm")))
sketch2.addConstraint(Sketcher.Constraint("DistanceY", 10, 1, 10, 2, Q("1.654514 mm")))
sketch2.addConstraint(Sketcher.Constraint("DistanceY", 17, 1, 17, 2, Q("2.831597 mm")))
sketch2.addConstraint(Sketcher.Constraint("DistanceY", 20, 1, 20, 2, Q("4.524306 mm")))
sketch2.addConstraint(Sketcher.Constraint("DistanceY", 38, 2, 38, 1, Q("1.697917 mm")))
sketch2.addConstraint(Sketcher.Constraint("DistanceY", 40, 1, 40, 2, Q("1.697917 mm")))
sketch2.addConstraint(Sketcher.Constraint("DistanceY", 46, 2, 46, 1, Q("0.791667 mm")))
sketch2.addConstraint(Sketcher.Constraint("DistanceY", 12, 2, -1, 1, Q("6.928819 mm")))
sketch2.addConstraint(Sketcher.Constraint("DistanceX", 18, 2, -1, 1, Q("0.991319 mm")))
sketch2.addConstraint(Sketcher.Constraint("DistanceY", 18, 2, -1, 1, Q("17.611111 mm")))
sketch2.addConstraint(Sketcher.Constraint("DistanceX", 43, 2, -1, 1, Q("2.076389 mm")))
pocket1 = doc.addObject("PartDesign::Pocket", "Pocket")
body.addObject(pocket1)
pocket1.Profile = sketch2
pocket1.Length = 0.6
pocket1.Reversed = True

sketch3 = doc.addObject("Sketcher::SketchObject", "Sketch002")
body.addObject(sketch3)
sketch3.AttachmentSupport = (doc.XZ_Plane, [""])
sketch3.MapMode = "FlatFace"
sketch3.addGeometry(Part.Circle(Vector(0, 0, 0), Vector(0, 0, 1), 3.2), False)
sketch3.addConstraint(Sketcher.Constraint("Coincident", 0, 3, -1, 1))
sketch3.addConstraint(Sketcher.Constraint("Diameter", 0, Q("6.4 mm")))
pad2 = doc.addObject("PartDesign::Pad", "Pad001")
body.addObject(pad2)
pad2.Profile = sketch3
pad2.Length = 4
pad2.Midplane = True

doc.recompute()
